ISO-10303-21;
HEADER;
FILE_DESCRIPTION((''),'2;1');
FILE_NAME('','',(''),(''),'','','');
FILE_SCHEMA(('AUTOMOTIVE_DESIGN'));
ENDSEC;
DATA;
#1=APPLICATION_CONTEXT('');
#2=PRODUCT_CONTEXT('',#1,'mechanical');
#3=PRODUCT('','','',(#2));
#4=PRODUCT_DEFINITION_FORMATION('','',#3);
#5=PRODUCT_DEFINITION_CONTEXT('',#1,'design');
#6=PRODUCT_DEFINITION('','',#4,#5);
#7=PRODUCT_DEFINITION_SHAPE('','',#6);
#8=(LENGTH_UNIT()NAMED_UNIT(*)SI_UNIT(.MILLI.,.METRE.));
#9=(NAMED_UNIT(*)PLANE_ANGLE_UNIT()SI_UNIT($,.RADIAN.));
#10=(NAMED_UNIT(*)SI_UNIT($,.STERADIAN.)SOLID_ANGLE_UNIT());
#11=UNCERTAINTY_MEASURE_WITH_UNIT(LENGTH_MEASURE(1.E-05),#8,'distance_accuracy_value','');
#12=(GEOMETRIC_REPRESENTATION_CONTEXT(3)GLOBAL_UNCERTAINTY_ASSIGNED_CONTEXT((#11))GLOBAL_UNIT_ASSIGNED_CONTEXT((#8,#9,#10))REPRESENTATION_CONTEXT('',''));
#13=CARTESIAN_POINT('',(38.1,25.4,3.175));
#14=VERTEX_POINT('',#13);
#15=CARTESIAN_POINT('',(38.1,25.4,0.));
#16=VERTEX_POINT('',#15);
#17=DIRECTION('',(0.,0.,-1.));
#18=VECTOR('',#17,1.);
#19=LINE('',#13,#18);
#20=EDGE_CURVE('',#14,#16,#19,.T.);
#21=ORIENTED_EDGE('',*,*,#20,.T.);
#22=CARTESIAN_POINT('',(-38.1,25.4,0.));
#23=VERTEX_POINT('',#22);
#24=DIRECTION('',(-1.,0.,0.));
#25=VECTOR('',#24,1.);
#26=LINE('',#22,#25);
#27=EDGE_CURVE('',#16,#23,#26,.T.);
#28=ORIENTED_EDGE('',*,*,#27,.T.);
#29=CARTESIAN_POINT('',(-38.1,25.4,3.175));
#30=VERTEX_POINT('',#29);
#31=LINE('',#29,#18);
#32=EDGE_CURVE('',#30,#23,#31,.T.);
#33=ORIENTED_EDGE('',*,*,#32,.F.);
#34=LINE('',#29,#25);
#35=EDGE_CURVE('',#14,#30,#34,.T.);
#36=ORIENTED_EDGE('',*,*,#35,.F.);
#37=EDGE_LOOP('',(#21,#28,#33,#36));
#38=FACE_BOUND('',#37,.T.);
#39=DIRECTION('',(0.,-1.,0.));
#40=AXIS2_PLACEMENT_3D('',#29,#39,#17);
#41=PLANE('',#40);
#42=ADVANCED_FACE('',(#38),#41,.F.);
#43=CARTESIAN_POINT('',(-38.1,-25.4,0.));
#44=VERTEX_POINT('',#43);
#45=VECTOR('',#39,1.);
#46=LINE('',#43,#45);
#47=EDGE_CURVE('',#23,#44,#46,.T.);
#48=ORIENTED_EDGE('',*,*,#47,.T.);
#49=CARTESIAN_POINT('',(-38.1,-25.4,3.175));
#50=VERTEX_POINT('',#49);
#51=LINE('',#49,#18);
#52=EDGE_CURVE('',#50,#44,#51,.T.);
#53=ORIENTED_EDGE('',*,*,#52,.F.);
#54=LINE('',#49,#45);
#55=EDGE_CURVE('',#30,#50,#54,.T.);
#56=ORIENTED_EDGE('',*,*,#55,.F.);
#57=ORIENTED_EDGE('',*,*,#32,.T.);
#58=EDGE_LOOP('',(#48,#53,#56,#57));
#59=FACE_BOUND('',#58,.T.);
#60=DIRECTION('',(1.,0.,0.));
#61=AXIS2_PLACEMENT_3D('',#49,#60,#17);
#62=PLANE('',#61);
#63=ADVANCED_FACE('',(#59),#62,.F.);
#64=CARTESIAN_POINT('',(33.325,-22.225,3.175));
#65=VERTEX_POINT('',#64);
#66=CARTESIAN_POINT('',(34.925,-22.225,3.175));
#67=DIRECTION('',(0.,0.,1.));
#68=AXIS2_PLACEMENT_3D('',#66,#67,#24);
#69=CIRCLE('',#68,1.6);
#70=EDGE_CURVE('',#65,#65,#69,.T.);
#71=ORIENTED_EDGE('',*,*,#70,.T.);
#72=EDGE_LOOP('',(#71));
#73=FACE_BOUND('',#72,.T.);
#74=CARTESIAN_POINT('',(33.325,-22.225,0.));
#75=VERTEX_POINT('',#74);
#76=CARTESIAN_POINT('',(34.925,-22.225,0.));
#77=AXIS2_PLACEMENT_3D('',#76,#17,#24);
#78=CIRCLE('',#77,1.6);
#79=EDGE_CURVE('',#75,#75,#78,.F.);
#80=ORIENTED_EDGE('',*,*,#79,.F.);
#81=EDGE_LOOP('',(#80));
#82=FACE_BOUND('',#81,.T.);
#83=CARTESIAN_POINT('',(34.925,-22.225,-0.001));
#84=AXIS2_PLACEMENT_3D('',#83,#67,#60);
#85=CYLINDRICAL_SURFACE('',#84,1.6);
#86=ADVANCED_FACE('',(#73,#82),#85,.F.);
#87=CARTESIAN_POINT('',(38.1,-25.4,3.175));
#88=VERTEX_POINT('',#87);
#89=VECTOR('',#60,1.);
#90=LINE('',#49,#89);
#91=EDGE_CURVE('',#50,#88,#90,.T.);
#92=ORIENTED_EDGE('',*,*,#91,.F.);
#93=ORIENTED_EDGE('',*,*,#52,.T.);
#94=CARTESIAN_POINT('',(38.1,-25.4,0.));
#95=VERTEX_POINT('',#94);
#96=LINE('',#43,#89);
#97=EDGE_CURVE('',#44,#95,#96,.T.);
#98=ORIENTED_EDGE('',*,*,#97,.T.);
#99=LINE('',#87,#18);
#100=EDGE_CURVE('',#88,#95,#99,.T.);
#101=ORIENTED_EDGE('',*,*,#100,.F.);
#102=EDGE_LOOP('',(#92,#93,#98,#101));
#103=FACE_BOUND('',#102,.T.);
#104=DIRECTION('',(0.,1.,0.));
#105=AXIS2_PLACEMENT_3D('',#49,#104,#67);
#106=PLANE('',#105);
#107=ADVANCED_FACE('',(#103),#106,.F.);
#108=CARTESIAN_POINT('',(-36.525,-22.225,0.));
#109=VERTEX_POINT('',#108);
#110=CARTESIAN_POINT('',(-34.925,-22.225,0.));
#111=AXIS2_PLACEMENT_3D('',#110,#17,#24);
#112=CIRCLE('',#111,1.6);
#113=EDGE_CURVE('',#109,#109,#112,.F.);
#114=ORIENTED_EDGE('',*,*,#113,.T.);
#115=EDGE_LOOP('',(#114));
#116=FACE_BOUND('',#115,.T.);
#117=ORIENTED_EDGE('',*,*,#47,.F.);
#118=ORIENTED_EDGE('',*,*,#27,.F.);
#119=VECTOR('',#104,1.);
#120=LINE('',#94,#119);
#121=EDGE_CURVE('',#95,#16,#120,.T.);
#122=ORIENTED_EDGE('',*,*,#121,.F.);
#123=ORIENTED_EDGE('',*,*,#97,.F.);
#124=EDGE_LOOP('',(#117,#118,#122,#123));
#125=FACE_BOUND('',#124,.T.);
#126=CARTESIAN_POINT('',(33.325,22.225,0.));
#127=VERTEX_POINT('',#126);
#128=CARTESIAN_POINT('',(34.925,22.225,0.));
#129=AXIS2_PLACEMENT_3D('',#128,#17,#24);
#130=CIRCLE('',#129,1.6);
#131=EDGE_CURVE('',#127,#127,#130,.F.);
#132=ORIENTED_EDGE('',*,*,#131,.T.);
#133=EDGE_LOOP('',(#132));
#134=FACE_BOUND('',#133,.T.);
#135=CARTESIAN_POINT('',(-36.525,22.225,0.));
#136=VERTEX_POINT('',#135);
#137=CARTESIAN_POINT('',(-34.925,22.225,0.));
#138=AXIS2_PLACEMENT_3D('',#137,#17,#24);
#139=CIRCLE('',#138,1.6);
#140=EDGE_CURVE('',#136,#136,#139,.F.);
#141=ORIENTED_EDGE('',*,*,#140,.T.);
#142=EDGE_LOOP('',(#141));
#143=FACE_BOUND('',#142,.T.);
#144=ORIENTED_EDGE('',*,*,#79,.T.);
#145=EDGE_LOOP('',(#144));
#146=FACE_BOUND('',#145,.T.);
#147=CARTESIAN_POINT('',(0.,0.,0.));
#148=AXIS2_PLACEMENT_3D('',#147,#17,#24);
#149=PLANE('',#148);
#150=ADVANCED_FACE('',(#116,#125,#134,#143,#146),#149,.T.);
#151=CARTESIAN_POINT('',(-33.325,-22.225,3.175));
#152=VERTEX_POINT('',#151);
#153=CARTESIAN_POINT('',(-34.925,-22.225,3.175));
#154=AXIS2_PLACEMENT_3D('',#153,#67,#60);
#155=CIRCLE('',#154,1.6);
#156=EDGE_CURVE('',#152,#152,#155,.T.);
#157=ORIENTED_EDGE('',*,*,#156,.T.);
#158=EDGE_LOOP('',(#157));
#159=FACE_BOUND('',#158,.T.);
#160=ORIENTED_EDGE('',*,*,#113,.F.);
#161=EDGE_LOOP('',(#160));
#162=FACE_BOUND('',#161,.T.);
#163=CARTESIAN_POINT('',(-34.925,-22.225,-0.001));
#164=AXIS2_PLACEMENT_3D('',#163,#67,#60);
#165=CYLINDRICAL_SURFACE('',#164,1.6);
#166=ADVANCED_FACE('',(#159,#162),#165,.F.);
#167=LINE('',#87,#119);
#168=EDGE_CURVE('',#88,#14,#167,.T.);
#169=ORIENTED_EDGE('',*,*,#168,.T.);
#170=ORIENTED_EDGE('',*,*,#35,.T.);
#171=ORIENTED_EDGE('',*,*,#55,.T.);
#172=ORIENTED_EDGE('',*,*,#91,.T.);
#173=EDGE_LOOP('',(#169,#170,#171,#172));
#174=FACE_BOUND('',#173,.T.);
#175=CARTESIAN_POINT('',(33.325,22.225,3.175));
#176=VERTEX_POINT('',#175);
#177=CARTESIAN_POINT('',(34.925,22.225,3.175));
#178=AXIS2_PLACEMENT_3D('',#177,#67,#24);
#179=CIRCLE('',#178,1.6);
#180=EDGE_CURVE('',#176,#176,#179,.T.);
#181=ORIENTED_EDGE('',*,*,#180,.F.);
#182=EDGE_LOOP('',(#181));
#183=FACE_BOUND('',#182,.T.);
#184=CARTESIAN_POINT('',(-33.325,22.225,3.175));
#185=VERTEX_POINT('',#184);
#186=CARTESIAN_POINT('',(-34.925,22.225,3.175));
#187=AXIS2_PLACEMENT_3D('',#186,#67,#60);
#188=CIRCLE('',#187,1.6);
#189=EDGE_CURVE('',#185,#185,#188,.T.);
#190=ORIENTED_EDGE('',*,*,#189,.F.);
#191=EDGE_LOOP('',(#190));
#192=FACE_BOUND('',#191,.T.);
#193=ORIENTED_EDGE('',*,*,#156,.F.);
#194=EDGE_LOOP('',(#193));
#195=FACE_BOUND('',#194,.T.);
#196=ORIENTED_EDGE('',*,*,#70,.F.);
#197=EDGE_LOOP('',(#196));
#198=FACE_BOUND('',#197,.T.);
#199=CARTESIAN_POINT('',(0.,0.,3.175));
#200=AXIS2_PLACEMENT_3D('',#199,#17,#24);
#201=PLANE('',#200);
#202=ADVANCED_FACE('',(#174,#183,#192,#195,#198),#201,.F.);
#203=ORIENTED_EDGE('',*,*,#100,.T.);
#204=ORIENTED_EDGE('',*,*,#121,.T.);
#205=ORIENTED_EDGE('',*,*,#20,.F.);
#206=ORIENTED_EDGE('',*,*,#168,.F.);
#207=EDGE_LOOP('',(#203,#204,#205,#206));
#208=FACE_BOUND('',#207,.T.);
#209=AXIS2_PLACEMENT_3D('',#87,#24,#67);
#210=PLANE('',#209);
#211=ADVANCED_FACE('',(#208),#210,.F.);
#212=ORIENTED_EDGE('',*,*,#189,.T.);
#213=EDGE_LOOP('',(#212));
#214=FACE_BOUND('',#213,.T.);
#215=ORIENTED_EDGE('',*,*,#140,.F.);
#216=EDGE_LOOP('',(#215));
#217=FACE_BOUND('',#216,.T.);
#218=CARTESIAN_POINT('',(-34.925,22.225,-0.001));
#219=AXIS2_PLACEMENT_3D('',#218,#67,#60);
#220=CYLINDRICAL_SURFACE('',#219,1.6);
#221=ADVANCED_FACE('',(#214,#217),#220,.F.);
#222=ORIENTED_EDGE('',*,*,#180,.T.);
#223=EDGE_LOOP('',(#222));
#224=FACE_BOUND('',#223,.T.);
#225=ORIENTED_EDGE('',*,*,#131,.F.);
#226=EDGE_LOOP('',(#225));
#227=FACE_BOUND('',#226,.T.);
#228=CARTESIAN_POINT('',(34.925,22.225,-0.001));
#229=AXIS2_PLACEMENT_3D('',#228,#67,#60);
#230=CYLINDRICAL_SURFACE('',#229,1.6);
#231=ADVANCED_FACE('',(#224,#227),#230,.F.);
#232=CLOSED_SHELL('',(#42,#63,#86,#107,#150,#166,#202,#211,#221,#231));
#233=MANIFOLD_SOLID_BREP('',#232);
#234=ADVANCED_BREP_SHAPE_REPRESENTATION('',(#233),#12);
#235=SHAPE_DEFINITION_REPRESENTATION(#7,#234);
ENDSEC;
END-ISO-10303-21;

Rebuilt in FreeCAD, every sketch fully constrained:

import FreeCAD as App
import Part
import Sketcher
Q = App.Units.Quantity


def add_polygon(sketch, points):
    """Adds a closed chain of lines whose ends are joined by coincident constraints."""
    first, n = sketch.GeometryCount, len(points)
    for a, b in zip(points, points[1:] + points[:1]):
        sketch.addGeometry(Part.LineSegment(App.Vector(*a, 0), App.Vector(*b, 0)), False)
    for i in range(n):
        sketch.addConstraint(Sketcher.Constraint("Coincident", first + i, 2, first + (i + 1) % n, 1))

doc = App.newDocument("Part")
body = doc.addObject("PartDesign::Body", "Body")

# Sketch on XY plane
sketch1 = doc.addObject("Sketcher::SketchObject", "Sketch")
body.addObject(sketch1)
sketch1.AttachmentSupport = (doc.XY_Plane, [""])
sketch1.MapMode = "FlatFace"
add_polygon(sketch1, [(-38.1, 25.4), (-38.1, -25.4), (38.1, -25.4), (38.1, 25.4)])  # lines 0-3
sketch1.addConstraint([
    Sketcher.Constraint("Vertical", 0),
    Sketcher.Constraint("Horizontal", 1),
    Sketcher.Constraint("Vertical", 2),
    Sketcher.Constraint("Horizontal", 3),
    Sketcher.Constraint("Symmetric", 0, 2, 2, 2, -1, 1),
    Sketcher.Constraint("DistanceX", 1, 1, 1, 2, Q("3 in")),
    Sketcher.Constraint("DistanceY", 0, 2, 0, 1, Q("2 in")),
])
pad1 = doc.addObject("PartDesign::Pad", "Pad")
body.addObject(pad1)
pad1.Profile = sketch1
pad1.Length = Q("0.125 in")

# Sketch on XY plane
sketch2 = doc.addObject("Sketcher::SketchObject", "Sketch001")
body.addObject(sketch2)
sketch2.AttachmentSupport = (doc.XY_Plane, [""])
sketch2.MapMode = "FlatFace"
sketch2.AttachmentOffset = App.Placement(App.Vector(0, 0, 0.125 * 25.4), App.Rotation())
sketch2.addGeometry(Part.Circle(App.Vector(-34.925, 22.225, 0), App.Vector(0, 0, 1), 1.6), False)
sketch2.addConstraint([
    Sketcher.Constraint("Diameter", 0, 3.2),
    Sketcher.Constraint("DistanceX", 0, 3, -1, 1, Q("1.375 in")),
    Sketcher.Constraint("DistanceY", -1, 1, 0, 3, Q("0.875 in")),
])
pocket1 = doc.addObject("PartDesign::Pocket", "Pocket")
body.addObject(pocket1)
pocket1.Profile = sketch2
pocket1.Type = "UpToFirst"

# Sketch on XY plane
sketch3 = doc.addObject("Sketcher::SketchObject", "Sketch002")
body.addObject(sketch3)
sketch3.AttachmentSupport = (doc.XY_Plane, [""])
sketch3.MapMode = "FlatFace"
sketch3.AttachmentOffset = App.Placement(App.Vector(0, 0, 0.125 * 25.4), App.Rotation())
sketch3.addGeometry(Part.Circle(App.Vector(-34.925, -22.225, 0), App.Vector(0, 0, 1), 1.6), False)
sketch3.addConstraint([
    Sketcher.Constraint("Diameter", 0, 3.2),
    Sketcher.Constraint("DistanceX", 0, 3, -1, 1, Q("1.375 in")),
    Sketcher.Constraint("DistanceY", 0, 3, -1, 1, Q("0.875 in")),
])
pocket2 = doc.addObject("PartDesign::Pocket", "Pocket001")
body.addObject(pocket2)
pocket2.Profile = sketch3
pocket2.Type = "UpToFirst"

# Sketch on XY plane
sketch4 = doc.addObject("Sketcher::SketchObject", "Sketch003")
body.addObject(sketch4)
sketch4.AttachmentSupport = (doc.XY_Plane, [""])
sketch4.MapMode = "FlatFace"
sketch4.AttachmentOffset = App.Placement(App.Vector(0, 0, 0.125 * 25.4), App.Rotation())
sketch4.addGeometry(Part.Circle(App.Vector(34.925, -22.225, 0), App.Vector(0, 0, 1), 1.6), False)
sketch4.addConstraint([
    Sketcher.Constraint("Diameter", 0, 3.2),
    Sketcher.Constraint("DistanceX", -1, 1, 0, 3, Q("1.375 in")),
    Sketcher.Constraint("DistanceY", 0, 3, -1, 1, Q("0.875 in")),
])
pocket3 = doc.addObject("PartDesign::Pocket", "Pocket002")
body.addObject(pocket3)
pocket3.Profile = sketch4
pocket3.Type = "UpToFirst"

# Sketch on XY plane
sketch5 = doc.addObject("Sketcher::SketchObject", "Sketch004")
body.addObject(sketch5)
sketch5.AttachmentSupport = (doc.XY_Plane, [""])
sketch5.MapMode = "FlatFace"
sketch5.AttachmentOffset = App.Placement(App.Vector(0, 0, 0.125 * 25.4), App.Rotation())
sketch5.addGeometry(Part.Circle(App.Vector(34.925, 22.225, 0), App.Vector(0, 0, 1), 1.6), False)
sketch5.addConstraint([
    Sketcher.Constraint("Diameter", 0, 3.2),
    Sketcher.Constraint("DistanceX", -1, 1, 0, 3, Q("1.375 in")),
    Sketcher.Constraint("DistanceY", -1, 1, 0, 3, Q("0.875 in")),
])
pocket4 = doc.addObject("PartDesign::Pocket", "Pocket003")
body.addObject(pocket4)
pocket4.Profile = sketch5
pocket4.Type = "UpToFirst"

doc.recompute()
